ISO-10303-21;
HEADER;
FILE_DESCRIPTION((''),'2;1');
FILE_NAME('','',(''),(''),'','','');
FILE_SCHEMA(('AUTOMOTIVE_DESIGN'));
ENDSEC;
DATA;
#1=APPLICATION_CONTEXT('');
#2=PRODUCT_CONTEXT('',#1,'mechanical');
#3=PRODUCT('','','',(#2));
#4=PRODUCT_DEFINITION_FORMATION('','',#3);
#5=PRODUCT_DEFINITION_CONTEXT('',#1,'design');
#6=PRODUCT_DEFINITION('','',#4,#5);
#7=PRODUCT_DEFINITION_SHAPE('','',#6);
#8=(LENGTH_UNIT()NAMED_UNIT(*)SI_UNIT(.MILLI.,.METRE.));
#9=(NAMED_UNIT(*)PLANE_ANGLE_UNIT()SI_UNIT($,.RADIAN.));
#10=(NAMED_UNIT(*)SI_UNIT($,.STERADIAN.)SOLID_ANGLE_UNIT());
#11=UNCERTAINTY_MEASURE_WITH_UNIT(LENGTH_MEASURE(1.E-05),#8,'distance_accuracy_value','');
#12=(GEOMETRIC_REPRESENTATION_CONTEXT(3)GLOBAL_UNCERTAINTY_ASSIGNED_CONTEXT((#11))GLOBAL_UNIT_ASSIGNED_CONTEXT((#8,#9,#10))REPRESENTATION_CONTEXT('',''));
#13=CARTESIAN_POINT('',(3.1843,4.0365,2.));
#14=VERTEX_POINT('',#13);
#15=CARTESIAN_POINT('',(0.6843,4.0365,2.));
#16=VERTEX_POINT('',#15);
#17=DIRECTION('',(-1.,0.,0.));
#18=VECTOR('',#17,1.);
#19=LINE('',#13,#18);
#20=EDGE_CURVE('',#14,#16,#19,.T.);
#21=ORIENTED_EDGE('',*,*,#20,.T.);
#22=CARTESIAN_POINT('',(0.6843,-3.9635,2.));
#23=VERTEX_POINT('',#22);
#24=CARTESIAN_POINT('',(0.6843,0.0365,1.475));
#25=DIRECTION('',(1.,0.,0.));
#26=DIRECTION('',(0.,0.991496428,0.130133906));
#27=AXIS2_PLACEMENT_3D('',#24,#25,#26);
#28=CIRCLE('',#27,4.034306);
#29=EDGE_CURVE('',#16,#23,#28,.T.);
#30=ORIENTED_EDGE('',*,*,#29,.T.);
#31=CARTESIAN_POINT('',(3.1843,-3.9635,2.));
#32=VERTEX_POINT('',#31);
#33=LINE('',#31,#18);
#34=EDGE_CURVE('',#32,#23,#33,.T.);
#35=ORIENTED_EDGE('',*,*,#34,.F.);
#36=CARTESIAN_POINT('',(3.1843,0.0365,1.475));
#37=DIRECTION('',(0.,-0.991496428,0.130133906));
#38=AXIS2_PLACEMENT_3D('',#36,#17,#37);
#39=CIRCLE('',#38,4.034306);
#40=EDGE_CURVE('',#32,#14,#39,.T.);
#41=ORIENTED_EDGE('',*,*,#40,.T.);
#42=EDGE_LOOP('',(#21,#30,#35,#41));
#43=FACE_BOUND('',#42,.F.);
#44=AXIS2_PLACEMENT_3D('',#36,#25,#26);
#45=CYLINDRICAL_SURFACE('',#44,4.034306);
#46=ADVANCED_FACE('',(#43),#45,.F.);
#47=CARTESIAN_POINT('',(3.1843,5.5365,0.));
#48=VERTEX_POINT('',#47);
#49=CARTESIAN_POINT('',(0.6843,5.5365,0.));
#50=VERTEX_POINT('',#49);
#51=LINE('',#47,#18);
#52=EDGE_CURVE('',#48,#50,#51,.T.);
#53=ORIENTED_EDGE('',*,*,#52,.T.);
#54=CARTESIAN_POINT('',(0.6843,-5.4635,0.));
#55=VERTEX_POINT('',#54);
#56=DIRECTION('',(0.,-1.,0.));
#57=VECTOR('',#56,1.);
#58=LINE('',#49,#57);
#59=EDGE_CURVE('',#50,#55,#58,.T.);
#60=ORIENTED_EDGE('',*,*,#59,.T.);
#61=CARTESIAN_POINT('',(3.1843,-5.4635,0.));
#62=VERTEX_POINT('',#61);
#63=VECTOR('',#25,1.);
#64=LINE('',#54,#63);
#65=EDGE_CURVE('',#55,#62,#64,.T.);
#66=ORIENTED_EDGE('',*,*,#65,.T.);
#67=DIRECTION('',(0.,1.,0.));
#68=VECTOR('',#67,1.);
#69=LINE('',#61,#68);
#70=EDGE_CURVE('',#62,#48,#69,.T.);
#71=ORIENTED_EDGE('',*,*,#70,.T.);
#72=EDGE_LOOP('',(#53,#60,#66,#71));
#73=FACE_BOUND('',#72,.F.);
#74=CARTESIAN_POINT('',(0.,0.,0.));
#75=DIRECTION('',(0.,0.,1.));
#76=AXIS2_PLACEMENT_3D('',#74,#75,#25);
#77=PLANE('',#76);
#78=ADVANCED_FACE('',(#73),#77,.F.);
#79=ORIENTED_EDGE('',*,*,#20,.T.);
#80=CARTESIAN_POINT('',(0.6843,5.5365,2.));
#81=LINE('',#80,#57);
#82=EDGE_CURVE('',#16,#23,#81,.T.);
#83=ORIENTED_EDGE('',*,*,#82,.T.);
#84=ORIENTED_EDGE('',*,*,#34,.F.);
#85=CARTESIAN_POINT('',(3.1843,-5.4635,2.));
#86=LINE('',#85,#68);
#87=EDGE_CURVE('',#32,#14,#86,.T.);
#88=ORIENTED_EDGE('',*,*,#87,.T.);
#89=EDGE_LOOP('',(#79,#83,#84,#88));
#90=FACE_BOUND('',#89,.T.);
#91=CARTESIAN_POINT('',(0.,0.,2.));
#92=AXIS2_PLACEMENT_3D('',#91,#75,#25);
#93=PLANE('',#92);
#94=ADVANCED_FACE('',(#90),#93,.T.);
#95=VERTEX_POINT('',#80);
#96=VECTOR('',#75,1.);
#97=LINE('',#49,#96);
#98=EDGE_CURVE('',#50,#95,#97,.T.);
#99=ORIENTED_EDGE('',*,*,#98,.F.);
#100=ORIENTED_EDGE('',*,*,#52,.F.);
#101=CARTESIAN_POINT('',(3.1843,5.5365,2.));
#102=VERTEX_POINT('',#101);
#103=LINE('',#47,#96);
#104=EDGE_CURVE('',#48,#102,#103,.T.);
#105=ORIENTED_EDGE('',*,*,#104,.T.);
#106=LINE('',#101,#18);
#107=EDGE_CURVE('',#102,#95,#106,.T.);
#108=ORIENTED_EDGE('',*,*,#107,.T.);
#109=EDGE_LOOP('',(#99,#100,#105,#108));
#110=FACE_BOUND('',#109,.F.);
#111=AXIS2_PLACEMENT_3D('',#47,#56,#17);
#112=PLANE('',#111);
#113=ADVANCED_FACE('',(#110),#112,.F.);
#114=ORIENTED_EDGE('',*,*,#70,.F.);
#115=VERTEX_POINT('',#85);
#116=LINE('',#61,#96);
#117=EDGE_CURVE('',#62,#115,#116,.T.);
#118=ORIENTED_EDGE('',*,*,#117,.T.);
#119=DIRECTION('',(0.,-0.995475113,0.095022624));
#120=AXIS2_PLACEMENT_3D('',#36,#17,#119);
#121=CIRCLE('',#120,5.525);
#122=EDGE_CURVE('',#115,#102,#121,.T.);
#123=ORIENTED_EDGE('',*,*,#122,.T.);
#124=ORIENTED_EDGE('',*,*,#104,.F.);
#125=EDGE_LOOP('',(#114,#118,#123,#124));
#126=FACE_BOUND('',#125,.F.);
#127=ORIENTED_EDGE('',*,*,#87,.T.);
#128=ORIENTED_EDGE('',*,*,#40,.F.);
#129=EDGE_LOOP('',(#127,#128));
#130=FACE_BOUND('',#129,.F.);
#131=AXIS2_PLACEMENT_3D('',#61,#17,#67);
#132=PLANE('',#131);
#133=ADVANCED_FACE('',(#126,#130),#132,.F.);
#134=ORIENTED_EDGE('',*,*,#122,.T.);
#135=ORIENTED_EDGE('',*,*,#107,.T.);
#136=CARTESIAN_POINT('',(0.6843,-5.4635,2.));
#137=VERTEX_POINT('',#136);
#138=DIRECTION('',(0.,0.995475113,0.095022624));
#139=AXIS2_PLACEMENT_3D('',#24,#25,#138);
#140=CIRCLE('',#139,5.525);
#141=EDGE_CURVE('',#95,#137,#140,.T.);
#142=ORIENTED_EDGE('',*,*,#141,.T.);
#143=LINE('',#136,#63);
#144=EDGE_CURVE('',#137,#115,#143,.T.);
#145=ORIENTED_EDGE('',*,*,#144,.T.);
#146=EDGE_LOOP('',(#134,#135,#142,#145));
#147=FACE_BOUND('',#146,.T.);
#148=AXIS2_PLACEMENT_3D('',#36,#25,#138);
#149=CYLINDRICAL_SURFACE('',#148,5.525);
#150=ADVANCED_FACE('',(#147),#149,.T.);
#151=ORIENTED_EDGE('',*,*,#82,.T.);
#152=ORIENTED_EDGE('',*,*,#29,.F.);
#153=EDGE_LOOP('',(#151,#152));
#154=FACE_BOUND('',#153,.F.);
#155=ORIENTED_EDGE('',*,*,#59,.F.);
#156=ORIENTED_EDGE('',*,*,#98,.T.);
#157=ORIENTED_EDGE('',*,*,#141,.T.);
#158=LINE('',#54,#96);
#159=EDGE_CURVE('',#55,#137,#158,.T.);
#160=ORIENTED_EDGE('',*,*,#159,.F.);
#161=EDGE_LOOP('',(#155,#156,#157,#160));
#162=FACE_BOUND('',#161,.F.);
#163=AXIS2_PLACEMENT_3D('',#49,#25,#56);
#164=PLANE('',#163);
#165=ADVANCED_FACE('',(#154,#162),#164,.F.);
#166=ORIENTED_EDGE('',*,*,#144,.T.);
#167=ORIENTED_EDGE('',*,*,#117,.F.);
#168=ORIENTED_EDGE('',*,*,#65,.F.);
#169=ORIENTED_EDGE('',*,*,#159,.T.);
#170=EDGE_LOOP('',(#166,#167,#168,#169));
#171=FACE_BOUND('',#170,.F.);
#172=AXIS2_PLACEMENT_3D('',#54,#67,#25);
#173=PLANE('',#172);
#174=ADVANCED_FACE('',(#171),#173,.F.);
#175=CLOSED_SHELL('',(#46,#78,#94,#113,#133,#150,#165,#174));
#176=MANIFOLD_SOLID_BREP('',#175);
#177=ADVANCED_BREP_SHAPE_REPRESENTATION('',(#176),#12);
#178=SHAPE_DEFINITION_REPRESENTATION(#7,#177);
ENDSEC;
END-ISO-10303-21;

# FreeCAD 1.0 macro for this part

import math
import FreeCAD as App
import Part
import Sketcher

V = App.Vector

doc = App.newDocument("Part")
body = doc.addObject("PartDesign::Body", "Body")

sketch1 = body.newObject("Sketcher::SketchObject", "Sketch")
sketch1.AttachmentSupport = (doc.getObject("XY_Plane"), [""])
sketch1.MapMode = "FlatFace"
sketch1.addGeometry([
    Part.LineSegment(V(0.7, 5.5, 0), V(0.7, -5.5, 0)),
    Part.LineSegment(V(0.7, -5.5, 0), V(3.2, -5.5, 0)),
    Part.LineSegment(V(3.2, -5.5, 0), V(3.2, 5.5, 0)),
    Part.LineSegment(V(3.2, 5.5, 0), V(0.7, 5.5, 0)),
], False)
sketch1.addConstraint([
    Sketcher.Constraint("Coincident", 0, 2, 1, 1),
    Sketcher.Constraint("Coincident", 1, 2, 2, 1),
    Sketcher.Constraint("Coincident", 2, 2, 3, 1),
    Sketcher.Constraint("Coincident", 3, 2, 0, 1),
    Sketcher.Constraint("Vertical", 0),
    Sketcher.Constraint("Horizontal", 1),
    Sketcher.Constraint("Vertical", 2),
    Sketcher.Constraint("Horizontal", 3),
    Sketcher.Constraint("DistanceY", 0, 2, 0, 1, 11.0),
    Sketcher.Constraint("DistanceX", 1, 1, 1, 2, 2.5),
    Sketcher.Constraint("DistanceX", -1, 1, 0, 2, 0.6843),
    Sketcher.Constraint("DistanceY", 0, 2, -1, 1, 5.4635),
])
pad1 = body.newObject("PartDesign::Pad", "Pad")
pad1.Profile = sketch1
pad1.Length = 2

sketch2 = body.newObject("Sketcher::SketchObject", "Sketch001")
sketch2.AttachmentSupport = (doc.getObject("YZ_Plane"), [""])
sketch2.MapMode = "FlatFace"
sketch2.AttachmentOffset = App.Placement(V(0, 0, 3.1843), App.Rotation())
sketch2.addGeometry([
    Part.LineSegment(V(-5.5, 2, 0), V(-4, 2, 0)),
    Part.ArcOfCircle(Part.Circle(V(0, 1.5, 0), V(0, 0, 1), 4), math.radians(7), math.radians(173)),
    Part.LineSegment(V(4, 2, 0), V(5.5, 2, 0)),
    Part.ArcOfCircle(Part.Circle(V(0, 1.5, 0), V(0, 0, 1), 5.5), math.radians(5), math.radians(175)),
], False)
sketch2.addConstraint([
    Sketcher.Constraint("Coincident", 0, 2, 1, 2),
    Sketcher.Constraint("Coincident", 1, 1, 2, 1),
    Sketcher.Constraint("Coincident", 2, 2, 3, 1),
    Sketcher.Constraint("Coincident", 3, 2, 0, 1),
    Sketcher.Constraint("Horizontal", 0),
    Sketcher.Constraint("Horizontal", 2),
    Sketcher.Constraint("Coincident", 3, 3, 1, 3),
    Sketcher.Constraint("Horizontal", 0, 2, 1, 1),
    Sketcher.Constraint("DistanceX", 0, 1, 0, 2, 1.5),
    Sketcher.Constraint("DistanceY", -1, 1, 0, 2, 2.0),
    Sketcher.Constraint("Radius", 3, 5.525),
    Sketcher.Constraint("DistanceX", 0, 2, 1, 3, 4.0),
    Sketcher.Constraint("DistanceX", -1, 1, 1, 3, 0.0365),
])
pad2 = body.newObject("PartDesign::Pad", "Pad001")
pad2.Profile = sketch2
pad2.Length = 2.5
pad2.Reversed = True

doc.recompute()
